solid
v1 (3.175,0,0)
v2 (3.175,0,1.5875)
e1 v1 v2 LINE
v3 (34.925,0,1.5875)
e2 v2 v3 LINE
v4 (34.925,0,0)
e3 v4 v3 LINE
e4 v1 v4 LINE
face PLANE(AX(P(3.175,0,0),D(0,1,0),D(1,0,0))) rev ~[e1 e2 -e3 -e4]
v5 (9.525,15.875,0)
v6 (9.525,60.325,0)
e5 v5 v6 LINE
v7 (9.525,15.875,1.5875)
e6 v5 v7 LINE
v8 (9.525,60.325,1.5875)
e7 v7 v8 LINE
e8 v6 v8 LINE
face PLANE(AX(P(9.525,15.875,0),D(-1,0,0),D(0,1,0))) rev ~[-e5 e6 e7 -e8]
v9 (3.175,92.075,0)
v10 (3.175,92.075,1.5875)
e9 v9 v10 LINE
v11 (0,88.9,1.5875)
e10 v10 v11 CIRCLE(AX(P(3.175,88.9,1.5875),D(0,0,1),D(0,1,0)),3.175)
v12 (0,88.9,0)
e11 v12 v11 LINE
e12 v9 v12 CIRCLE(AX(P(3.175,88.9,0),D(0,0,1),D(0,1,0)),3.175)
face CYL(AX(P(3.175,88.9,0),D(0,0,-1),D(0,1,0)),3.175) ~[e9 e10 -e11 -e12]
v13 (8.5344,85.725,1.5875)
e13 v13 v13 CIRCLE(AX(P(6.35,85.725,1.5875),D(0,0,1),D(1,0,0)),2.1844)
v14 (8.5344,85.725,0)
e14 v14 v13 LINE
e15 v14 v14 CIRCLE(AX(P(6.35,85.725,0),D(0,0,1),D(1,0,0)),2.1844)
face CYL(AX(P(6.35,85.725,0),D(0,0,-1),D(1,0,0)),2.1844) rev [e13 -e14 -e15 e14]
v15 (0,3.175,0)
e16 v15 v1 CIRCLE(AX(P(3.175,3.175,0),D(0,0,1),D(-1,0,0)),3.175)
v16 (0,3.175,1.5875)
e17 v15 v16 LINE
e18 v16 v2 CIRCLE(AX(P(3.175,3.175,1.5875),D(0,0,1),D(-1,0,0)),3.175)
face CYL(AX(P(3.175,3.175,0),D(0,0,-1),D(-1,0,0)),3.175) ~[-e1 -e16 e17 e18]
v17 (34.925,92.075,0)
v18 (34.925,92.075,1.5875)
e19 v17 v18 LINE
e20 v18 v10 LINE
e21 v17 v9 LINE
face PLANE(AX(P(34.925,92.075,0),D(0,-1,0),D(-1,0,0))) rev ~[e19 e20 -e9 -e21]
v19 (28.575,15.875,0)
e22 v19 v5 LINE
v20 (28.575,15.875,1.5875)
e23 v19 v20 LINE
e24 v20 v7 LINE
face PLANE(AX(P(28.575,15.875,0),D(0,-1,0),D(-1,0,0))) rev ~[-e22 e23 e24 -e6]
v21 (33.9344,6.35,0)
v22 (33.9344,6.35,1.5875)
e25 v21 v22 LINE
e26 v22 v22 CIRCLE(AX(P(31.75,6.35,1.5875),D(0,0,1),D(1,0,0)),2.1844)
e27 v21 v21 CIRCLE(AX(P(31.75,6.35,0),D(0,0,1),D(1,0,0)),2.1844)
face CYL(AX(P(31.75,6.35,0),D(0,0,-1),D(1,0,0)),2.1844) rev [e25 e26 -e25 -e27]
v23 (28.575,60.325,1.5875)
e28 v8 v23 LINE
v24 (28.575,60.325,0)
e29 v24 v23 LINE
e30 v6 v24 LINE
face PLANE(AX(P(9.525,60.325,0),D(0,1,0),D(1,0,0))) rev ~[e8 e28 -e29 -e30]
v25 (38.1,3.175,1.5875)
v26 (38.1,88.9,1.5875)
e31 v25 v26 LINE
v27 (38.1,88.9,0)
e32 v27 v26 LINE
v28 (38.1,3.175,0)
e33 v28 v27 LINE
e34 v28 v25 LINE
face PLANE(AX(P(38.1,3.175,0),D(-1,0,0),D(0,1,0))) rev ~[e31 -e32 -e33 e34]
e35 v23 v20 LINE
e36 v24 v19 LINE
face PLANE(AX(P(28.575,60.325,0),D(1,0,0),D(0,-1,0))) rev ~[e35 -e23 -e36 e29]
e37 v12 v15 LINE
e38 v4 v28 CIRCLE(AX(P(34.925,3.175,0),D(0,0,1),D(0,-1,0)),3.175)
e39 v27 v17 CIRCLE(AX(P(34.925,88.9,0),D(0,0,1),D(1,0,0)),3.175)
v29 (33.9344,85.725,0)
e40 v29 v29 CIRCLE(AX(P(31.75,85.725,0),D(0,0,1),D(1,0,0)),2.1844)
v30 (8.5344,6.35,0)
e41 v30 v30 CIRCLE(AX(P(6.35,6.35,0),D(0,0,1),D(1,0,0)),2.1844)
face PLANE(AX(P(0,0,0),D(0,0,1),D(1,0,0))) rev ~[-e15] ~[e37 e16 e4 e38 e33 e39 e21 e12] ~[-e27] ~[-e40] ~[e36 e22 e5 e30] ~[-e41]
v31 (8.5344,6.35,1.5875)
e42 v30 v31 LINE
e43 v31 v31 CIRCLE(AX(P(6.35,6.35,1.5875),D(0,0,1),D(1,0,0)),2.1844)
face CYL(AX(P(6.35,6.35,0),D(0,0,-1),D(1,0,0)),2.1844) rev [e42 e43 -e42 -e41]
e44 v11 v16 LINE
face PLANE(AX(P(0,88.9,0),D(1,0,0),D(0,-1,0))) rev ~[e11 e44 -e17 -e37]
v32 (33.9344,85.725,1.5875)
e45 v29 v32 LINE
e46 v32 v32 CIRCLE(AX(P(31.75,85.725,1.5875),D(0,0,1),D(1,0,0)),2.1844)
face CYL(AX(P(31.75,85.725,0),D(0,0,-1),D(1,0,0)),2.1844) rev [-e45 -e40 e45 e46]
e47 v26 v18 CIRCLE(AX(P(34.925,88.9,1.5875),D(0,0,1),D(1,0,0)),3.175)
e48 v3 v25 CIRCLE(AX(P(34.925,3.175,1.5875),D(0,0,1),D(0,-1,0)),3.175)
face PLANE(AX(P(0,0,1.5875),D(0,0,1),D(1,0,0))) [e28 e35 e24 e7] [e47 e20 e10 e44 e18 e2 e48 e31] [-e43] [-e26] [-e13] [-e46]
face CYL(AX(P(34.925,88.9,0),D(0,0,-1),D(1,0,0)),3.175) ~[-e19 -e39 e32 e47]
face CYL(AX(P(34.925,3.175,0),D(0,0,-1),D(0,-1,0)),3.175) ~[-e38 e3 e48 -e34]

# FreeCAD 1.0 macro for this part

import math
import FreeCAD as App
import Part
import Sketcher

V = App.Vector
Q = App.Units.Quantity

doc = App.newDocument("Part")
body = doc.addObject("PartDesign::Body", "Body")

sketch1 = body.newObject("Sketcher::SketchObject", "Sketch")
sketch1.AttachmentSupport = (doc.getObject("XY_Plane"), [""])
sketch1.MapMode = "FlatFace"
sketch1.addGeometry([
    Part.ArcOfCircle(Part.Circle(V(3.2, 3.2, 0), V(0, 0, 1), 3.2), math.radians(180), math.radians(270)),
    Part.LineSegment(V(3.2, 0, 0), V(34.9, 0, 0)),
    Part.ArcOfCircle(Part.Circle(V(34.9, 3.2, 0), V(0, 0, 1), 3.2), math.radians(-90), math.radians(0)),
    Part.LineSegment(V(38.1, 3.2, 0), V(38.1, 88.9, 0)),
    Part.ArcOfCircle(Part.Circle(V(34.9, 88.9, 0), V(0, 0, 1), 3.2), math.radians(0), math.radians(90)),
    Part.LineSegment(V(34.9, 92.1, 0), V(3.2, 92.1, 0)),
    Part.ArcOfCircle(Part.Circle(V(3.2, 88.9, 0), V(0, 0, 1), 3.2), math.radians(90), math.radians(180)),
    Part.LineSegment(V(0, 88.9, 0), V(0, 3.2, 0)),
    Part.Circle(V(6.3, 6.3, 0), V(0, 0, 1), 2.2),
    Part.Circle(V(31.8, 6.3, 0), V(0, 0, 1), 2.2),
    Part.LineSegment(V(9.5, 15.9, 0), V(9.5, 60.3, 0)),
    Part.LineSegment(V(9.5, 60.3, 0), V(28.6, 60.3, 0)),
    Part.LineSegment(V(28.6, 60.3, 0), V(28.6, 15.9, 0)),
    Part.LineSegment(V(28.6, 15.9, 0), V(9.5, 15.9, 0)),
    Part.Circle(V(6.3, 85.7, 0), V(0, 0, 1), 2.2),
    Part.Circle(V(31.8, 85.7, 0), V(0, 0, 1), 2.2),
], False)
sketch1.addConstraint([
    Sketcher.Constraint("Tangent", 0, 2, 1, 1),
    Sketcher.Constraint("Tangent", 1, 2, 2, 1),
    Sketcher.Constraint("Tangent", 2, 2, 3, 1),
    Sketcher.Constraint("Tangent", 3, 2, 4, 1),
    Sketcher.Constraint("Tangent", 4, 2, 5, 1),
    Sketcher.Constraint("Tangent", 5, 2, 6, 1),
    Sketcher.Constraint("Tangent", 6, 2, 7, 1),
    Sketcher.Constraint("Tangent", 7, 2, 0, 1),
    Sketcher.Constraint("Coincident", 10, 2, 11, 1),
    Sketcher.Constraint("Coincident", 11, 2, 12, 1),
    Sketcher.Constraint("Coincident", 12, 2, 13, 1),
    Sketcher.Constraint("Coincident", 13, 2, 10, 1),
    Sketcher.Constraint("Horizontal", 1),
    Sketcher.Constraint("Vertical", 3),
    Sketcher.Constraint("Horizontal", 5),
    Sketcher.Constraint("Vertical", 7),
    Sketcher.Constraint("Vertical", 10),
    Sketcher.Constraint("Horizontal", 11),
    Sketcher.Constraint("Vertical", 12),
    Sketcher.Constraint("Horizontal", 13),
    Sketcher.Constraint("Equal", 0, 2),
    Sketcher.Constraint("Equal", 2, 4),
    Sketcher.Constraint("Equal", 4, 6),
    Sketcher.Constraint("Equal", 8, 9),
    Sketcher.Constraint("Equal", 9, 14),
    Sketcher.Constraint("Equal", 14, 15),
    Sketcher.Constraint("PointOnObject", 0, 2, -1),
    Sketcher.Constraint("PointOnObject", 6, 2, -2),
    Sketcher.Constraint("Horizontal", 8, 3, 9, 3),
    Sketcher.Constraint("Horizontal", 14, 3, 15, 3),
    Sketcher.Constraint("Vertical", 8, 3, 14, 3),
    Sketcher.Constraint("Vertical", 9, 3, 15, 3),
    Sketcher.Constraint("Diameter", 8, Q("0.172 in")),
    Sketcher.Constraint("Radius", 0, Q("0.125 in")),
    Sketcher.Constraint("DistanceX", 8, 3, 9, 3, Q("1 in")),
    Sketcher.Constraint("DistanceY", 10, 2, 14, 3, Q("1 in")),
    Sketcher.Constraint("DistanceX", -1, 1, 2, 2, Q("1.5 in")),
    Sketcher.Constraint("DistanceX", -1, 1, 8, 3, Q("0.25 in")),
    Sketcher.Constraint("DistanceY", -1, 1, 8, 3, Q("0.25 in")),
    Sketcher.Constraint("DistanceY", 15, 3, 4, 2, Q("0.25 in")),
    Sketcher.Constraint("DistanceX", 6, 3, 10, 2, Q("0.25 in")),
    Sketcher.Constraint("DistanceX", 11, 2, 4, 3, Q("0.25 in")),
    Sketcher.Constraint("DistanceY", -1, 1, 4, 2, Q("3.625 in")),
    Sketcher.Constraint("DistanceY", 9, 3, 12, 2, Q("0.375 in")),
])
pad1 = body.newObject("PartDesign::Pad", "Pad")
pad1.Profile = sketch1
pad1.Length = Q("0.0625 in")

doc.recompute()
